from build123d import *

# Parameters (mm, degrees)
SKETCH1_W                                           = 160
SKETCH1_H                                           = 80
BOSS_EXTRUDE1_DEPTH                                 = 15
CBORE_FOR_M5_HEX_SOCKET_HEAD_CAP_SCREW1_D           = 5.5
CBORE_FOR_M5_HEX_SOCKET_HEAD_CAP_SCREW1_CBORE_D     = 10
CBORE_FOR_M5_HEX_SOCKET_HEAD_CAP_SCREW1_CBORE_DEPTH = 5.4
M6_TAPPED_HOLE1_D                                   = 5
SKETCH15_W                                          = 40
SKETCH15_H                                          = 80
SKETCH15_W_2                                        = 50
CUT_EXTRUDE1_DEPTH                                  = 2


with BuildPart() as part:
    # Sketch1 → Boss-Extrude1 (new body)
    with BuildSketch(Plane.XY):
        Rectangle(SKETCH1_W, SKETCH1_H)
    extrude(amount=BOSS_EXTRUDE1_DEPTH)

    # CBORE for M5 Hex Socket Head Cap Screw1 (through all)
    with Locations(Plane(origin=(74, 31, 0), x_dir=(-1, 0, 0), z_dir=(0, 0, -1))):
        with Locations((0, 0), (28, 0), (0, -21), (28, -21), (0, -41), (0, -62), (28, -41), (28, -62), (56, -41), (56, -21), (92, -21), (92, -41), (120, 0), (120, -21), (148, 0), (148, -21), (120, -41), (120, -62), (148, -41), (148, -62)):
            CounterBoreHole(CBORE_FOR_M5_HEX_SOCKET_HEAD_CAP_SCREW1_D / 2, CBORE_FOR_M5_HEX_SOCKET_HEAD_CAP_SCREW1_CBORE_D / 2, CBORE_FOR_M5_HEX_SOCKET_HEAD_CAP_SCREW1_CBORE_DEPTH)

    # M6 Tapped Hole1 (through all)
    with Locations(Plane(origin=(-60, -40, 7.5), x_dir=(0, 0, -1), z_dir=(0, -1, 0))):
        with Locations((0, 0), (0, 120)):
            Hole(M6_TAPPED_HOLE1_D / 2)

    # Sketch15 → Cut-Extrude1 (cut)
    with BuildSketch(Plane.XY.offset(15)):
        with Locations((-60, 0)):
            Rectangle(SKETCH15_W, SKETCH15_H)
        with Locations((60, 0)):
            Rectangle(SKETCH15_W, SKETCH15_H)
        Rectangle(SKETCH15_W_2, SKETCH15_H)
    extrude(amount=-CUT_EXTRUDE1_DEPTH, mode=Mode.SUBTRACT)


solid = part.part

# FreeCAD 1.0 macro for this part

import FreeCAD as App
import Part
import Sketcher

V = App.Vector

doc = App.newDocument("Part")
params = doc.addObject("Spreadsheet::Sheet", "Params")
for row, (alias, value) in enumerate([
    ("sketch1_width", "160 mm"),
    ("sketch1_height", "80 mm"),
    ("pad1_length", "15 mm"),
    ("sketch2_diameter", "5.5 mm"),
    ("hole_diameter", "5.5 mm"),
    ("hole_cbore_diameter", "10 mm"),
    ("hole_cbore_depth", "5.4 mm"),
    ("sketch3_diameter", "5 mm"),
    ("hole2_diameter", "5 mm"),
    ("sketch4_width", "40 mm"),
    ("sketch4_width2", "50 mm"),
    ("sketch4_height", "80 mm"),
    ("pocket1_length", "2 mm"),
], start=1):
    params.set(f"A{row}", alias)
    params.set(f"B{row}", "=" + value)
    params.setAlias(f"B{row}", alias)

body = doc.addObject("PartDesign::Body", "Body")

# Sketch on XY plane
sketch1 = body.newObject("Sketcher::SketchObject", "Sketch")
sketch1.AttachmentSupport = (doc.getObject("XY_Plane"), [""])
sketch1.MapMode = "FlatFace"
sketch1.addGeometry([
    Part.LineSegment(V(-80, 40, 0), V(-80, -40, 0)),
    Part.LineSegment(V(-80, -40, 0), V(80, -40, 0)),
    Part.LineSegment(V(80, -40, 0), V(80, 40, 0)),
    Part.LineSegment(V(80, 40, 0), V(-80, 40, 0)),
], False)
sketch1.addConstraint([
    Sketcher.Constraint("Coincident", 0, 2, 1, 1),
    Sketcher.Constraint("Coincident", 1, 2, 2, 1),
    Sketcher.Constraint("Coincident", 2, 2, 3, 1),
    Sketcher.Constraint("Coincident", 3, 2, 0, 1),
    Sketcher.Constraint("Vertical", 0),
    Sketcher.Constraint("Horizontal", 1),
    Sketcher.Constraint("Vertical", 2),
    Sketcher.Constraint("Horizontal", 3),
    Sketcher.Constraint("Symmetric", 0, 2, 2, 2, -1, 1),
    Sketcher.Constraint("DistanceX", 1, 1, 1, 2, 160.0),
    Sketcher.Constraint("DistanceY", 0, 2, 0, 1, 80.0),
])
sketch1.setExpression("Constraints[9]", "Params.sketch1_width")
sketch1.setExpression("Constraints[10]", "Params.sketch1_height")
pad1 = body.newObject("PartDesign::Pad", "Pad")
pad1.Profile = sketch1
pad1.setExpression("Length", "Params.pad1_length")

# Sketch on XY plane
sketch2 = body.newObject("Sketcher::SketchObject", "Sketch001")
sketch2.AttachmentSupport = (doc.getObject("XY_Plane"), [""])
sketch2.MapMode = "FlatFace"
sketch2.addGeometry([
    Part.Circle(V(74, 31, 0), V(0, 0, 1), 2.8),  # 0
    Part.Circle(V(46, 31, 0), V(0, 0, 1), 2.8),  # 1
    Part.Circle(V(74, 10, 0), V(0, 0, 1), 2.8),  # 2
    Part.Circle(V(46, 10, 0), V(0, 0, 1), 2.8),  # 3
    Part.Circle(V(74, -10, 0), V(0, 0, 1), 2.8),  # 4
    Part.Circle(V(74, -31, 0), V(0, 0, 1), 2.8),  # 5
    Part.Circle(V(46, -10, 0), V(0, 0, 1), 2.8),  # 6
    Part.Circle(V(46, -31, 0), V(0, 0, 1), 2.8),  # 7
    Part.Circle(V(18, -10, 0), V(0, 0, 1), 2.8),  # 8
    Part.Circle(V(18, 10, 0), V(0, 0, 1), 2.8),  # 9
    Part.Circle(V(-18, 10, 0), V(0, 0, 1), 2.8),  # 10
    Part.Circle(V(-18, -10, 0), V(0, 0, 1), 2.8),  # 11
    Part.Circle(V(-46, 31, 0), V(0, 0, 1), 2.8),  # 12
    Part.Circle(V(-46, 10, 0), V(0, 0, 1), 2.8),  # 13
    Part.Circle(V(-74, 31, 0), V(0, 0, 1), 2.8),  # 14
    Part.Circle(V(-74, 10, 0), V(0, 0, 1), 2.8),  # 15
    Part.Circle(V(-46, -10, 0), V(0, 0, 1), 2.8),  # 16
    Part.Circle(V(-46, -31, 0), V(0, 0, 1), 2.8),  # 17
    Part.Circle(V(-74, -10, 0), V(0, 0, 1), 2.8),  # 18
    Part.Circle(V(-74, -31, 0), V(0, 0, 1), 2.8),  # 19
], False)
sketch2.addConstraint([
    Sketcher.Constraint("Equal", 0, 1),
    Sketcher.Constraint("Equal", 1, 2),
    Sketcher.Constraint("Equal", 2, 3),
    Sketcher.Constraint("Equal", 3, 4),
    Sketcher.Constraint("Equal", 4, 5),
    Sketcher.Constraint("Equal", 5, 6),
    Sketcher.Constraint("Equal", 6, 7),
    Sketcher.Constraint("Equal", 7, 8),
    Sketcher.Constraint("Equal", 8, 9),
    Sketcher.Constraint("Equal", 9, 10),
    Sketcher.Constraint("Equal", 10, 11),
    Sketcher.Constraint("Equal", 11, 12),
    Sketcher.Constraint("Equal", 12, 13),
    Sketcher.Constraint("Equal", 13, 14),
    Sketcher.Constraint("Equal", 14, 15),
    Sketcher.Constraint("Equal", 15, 16),
    Sketcher.Constraint("Equal", 16, 17),
    Sketcher.Constraint("Equal", 17, 18),
    Sketcher.Constraint("Equal", 18, 19),
    Sketcher.Constraint("Symmetric", 8, 3, 10, 3, -1, 1),
    Sketcher.Constraint("Symmetric", 9, 3, 11, 3, -1, 1),
    Sketcher.Constraint("Symmetric", 7, 3, 12, 3, -1, 1),
    Sketcher.Constraint("Symmetric", 6, 3, 13, 3, -1, 1),
    Sketcher.Constraint("Symmetric", 5, 3, 14, 3, -1, 1),
    Sketcher.Constraint("Symmetric", 4, 3, 15, 3, -1, 1),
    Sketcher.Constraint("Symmetric", 3, 3, 16, 3, -1, 1),
    Sketcher.Constraint("Symmetric", 1, 3, 17, 3, -1, 1),
    Sketcher.Constraint("Symmetric", 2, 3, 18, 3, -1, 1),
    Sketcher.Constraint("Symmetric", 0, 3, 19, 3, -1, 1),
    Sketcher.Constraint("Symmetric", 9, 3, 10, 3, -2),
    Sketcher.Constraint("Symmetric", 1, 3, 12, 3, -2),
    Sketcher.Constraint("Symmetric", 3, 3, 13, 3, -2),
    Sketcher.Constraint("Symmetric", 0, 3, 14, 3, -2),
    Sketcher.Constraint("Symmetric", 2, 3, 15, 3, -2),
    Sketcher.Constraint("Horizontal", 0, 3, 1, 3),
    Sketcher.Constraint("Horizontal", 2, 3, 3, 3),
    Sketcher.Constraint("Horizontal", 6, 3, 8, 3),
    Sketcher.Constraint("Vertical", 0, 3, 2, 3),
    Sketcher.Constraint("Vertical", 1, 3, 3, 3),
    Sketcher.Constraint("Diameter", 0, 5.5),
    Sketcher.Constraint("DistanceX", -1, 1, 0, 3, 74.0),
    Sketcher.Constraint("DistanceY", -1, 1, 0, 3, 31.0),
    Sketcher.Constraint("DistanceX", -1, 1, 1, 3, 46.0),
    Sketcher.Constraint("DistanceY", -1, 1, 2, 3, 10.0),
    Sketcher.Constraint("DistanceX", -1, 1, 8, 3, 18.0),
])
sketch2.setExpression("Constraints[39]", "Params.sketch2_diameter")
doc.recompute()
hole = body.newObject("PartDesign::Hole", "Hole")
hole.Profile = sketch2
hole.ThreadType = "None"
hole.setExpression("Diameter", "Params.hole_diameter")
hole.DepthType = "ThroughAll"
hole.HoleCutType = "Counterbore"
hole.setExpression("HoleCutDiameter", "Params.hole_cbore_diameter")
hole.setExpression("HoleCutDepth", "Params.hole_cbore_depth")
hole.Reversed = True

# Sketch on XZ plane
sketch3 = body.newObject("Sketcher::SketchObject", "Sketch002")
sketch3.AttachmentSupport = (doc.getObject("XZ_Plane"), [""])
sketch3.MapMode = "FlatFace"
sketch3.AttachmentOffset = App.Placement(V(0, 0, 40), App.Rotation())
sketch3.addGeometry([
    Part.Circle(V(-60, 7.5, 0), V(0, 0, 1), 2.5),
    Part.Circle(V(60, 7.5, 0), V(0, 0, 1), 2.5),
], False)
sketch3.addConstraint([
    Sketcher.Constraint("Equal", 0, 1),
    Sketcher.Constraint("Symmetric", 0, 3, 1, 3, -2),
    Sketcher.Constraint("Diameter", 0, 5.0),
    Sketcher.Constraint("DistanceX", 0, 3, -1, 1, 60.0),
    Sketcher.Constraint("DistanceY", -1, 1, 0, 3, 7.5),
])
sketch3.setExpression("Constraints[2]", "Params.sketch3_diameter")
doc.recompute()
hole2 = body.newObject("PartDesign::Hole", "Hole001")
hole2.Profile = sketch3
hole2.ThreadType = "None"
hole2.setExpression("Diameter", "Params.hole2_diameter")
hole2.DepthType = "ThroughAll"

# Sketch on XY plane
sketch4 = body.newObject("Sketcher::SketchObject", "Sketch003")
sketch4.AttachmentSupport = (doc.getObject("XY_Plane"), [""])
sketch4.MapMode = "FlatFace"
sketch4.AttachmentOffset = App.Placement(V(0, 0, 15), App.Rotation())
sketch4.addGeometry([
    Part.LineSegment(V(-80, 40, 0), V(-80, -40, 0)),  # 0
    Part.LineSegment(V(-80, -40, 0), V(-40, -40, 0)),  # 1
    Part.LineSegment(V(-40, -40, 0), V(-40, 40, 0)),  # 2
    Part.LineSegment(V(-40, 40, 0), V(-80, 40, 0)),  # 3
    Part.LineSegment(V(40, 40, 0), V(40, -40, 0)),  # 4
    Part.LineSegment(V(40, -40, 0), V(80, -40, 0)),  # 5
    Part.LineSegment(V(80, -40, 0), V(80, 40, 0)),  # 6
    Part.LineSegment(V(80, 40, 0), V(40, 40, 0)),  # 7
    Part.LineSegment(V(-25, 40, 0), V(-25, -40, 0)),  # 8
    Part.LineSegment(V(-25, -40, 0), V(25, -40, 0)),  # 9
    Part.LineSegment(V(25, -40, 0), V(25, 40, 0)),  # 10
    Part.LineSegment(V(25, 40, 0), V(-25, 40, 0)),  # 11
], False)
sketch4.addConstraint([
    Sketcher.Constraint("Coincident", 0, 2, 1, 1),
    Sketcher.Constraint("Coincident", 1, 2, 2, 1),
    Sketcher.Constraint("Coincident", 2, 2, 3, 1),
    Sketcher.Constraint("Coincident", 3, 2, 0, 1),
    Sketcher.Constraint("Coincident", 4, 2, 5, 1),
    Sketcher.Constraint("Coincident", 5, 2, 6, 1),
    Sketcher.Constraint("Coincident", 6, 2, 7, 1),
    Sketcher.Constraint("Coincident", 7, 2, 4, 1),
    Sketcher.Constraint("Coincident", 8, 2, 9, 1),
    Sketcher.Constraint("Coincident", 9, 2, 10, 1),
    Sketcher.Constraint("Coincident", 10, 2, 11, 1),
    Sketcher.Constraint("Coincident", 11, 2, 8, 1),
    Sketcher.Constraint("Vertical", 0),
    Sketcher.Constraint("Horizontal", 1),
    Sketcher.Constraint("Vertical", 2),
    Sketcher.Constraint("Horizontal", 3),
    Sketcher.Constraint("Vertical", 4),
    Sketcher.Constraint("Horizontal", 5),
    Sketcher.Constraint("Vertical", 6),
    Sketcher.Constraint("Horizontal", 7),
    Sketcher.Constraint("Vertical", 8),
    Sketcher.Constraint("Horizontal", 9),
    Sketcher.Constraint("Vertical", 10),
    Sketcher.Constraint("Horizontal", 11),
    Sketcher.Constraint("Symmetric", 2, 2, 4, 2, -1, 1),
    Sketcher.Constraint("Symmetric", 0, 2, 6, 2, -1, 1),
    Sketcher.Constraint("Symmetric", 8, 2, 10, 2, -1, 1),
    Sketcher.Constraint("Horizontal", 1, 2, 4, 2),
    Sketcher.Constraint("Horizontal", 5, 2, 8, 2),
    Sketcher.Constraint("DistanceX", 1, 1, 1, 2, 40.0),
    Sketcher.Constraint("DistanceX", 9, 1, 9, 2, 50.0),
    Sketcher.Constraint("DistanceY", 0, 2, 0, 1, 80.0),
    Sketcher.Constraint("DistanceX", 0, 2, -1, 1, 80.0),
])
sketch4.setExpression("Constraints[29]", "Params.sketch4_width")
sketch4.setExpression("Constraints[30]", "Params.sketch4_width2")
sketch4.setExpression("Constraints[31]", "Params.sketch4_height")
pocket1 = body.newObject("PartDesign::Pocket", "Pocket")
pocket1.Profile = sketch4
pocket1.setExpression("Length", "Params.pocket1_length")

doc.recompute()
